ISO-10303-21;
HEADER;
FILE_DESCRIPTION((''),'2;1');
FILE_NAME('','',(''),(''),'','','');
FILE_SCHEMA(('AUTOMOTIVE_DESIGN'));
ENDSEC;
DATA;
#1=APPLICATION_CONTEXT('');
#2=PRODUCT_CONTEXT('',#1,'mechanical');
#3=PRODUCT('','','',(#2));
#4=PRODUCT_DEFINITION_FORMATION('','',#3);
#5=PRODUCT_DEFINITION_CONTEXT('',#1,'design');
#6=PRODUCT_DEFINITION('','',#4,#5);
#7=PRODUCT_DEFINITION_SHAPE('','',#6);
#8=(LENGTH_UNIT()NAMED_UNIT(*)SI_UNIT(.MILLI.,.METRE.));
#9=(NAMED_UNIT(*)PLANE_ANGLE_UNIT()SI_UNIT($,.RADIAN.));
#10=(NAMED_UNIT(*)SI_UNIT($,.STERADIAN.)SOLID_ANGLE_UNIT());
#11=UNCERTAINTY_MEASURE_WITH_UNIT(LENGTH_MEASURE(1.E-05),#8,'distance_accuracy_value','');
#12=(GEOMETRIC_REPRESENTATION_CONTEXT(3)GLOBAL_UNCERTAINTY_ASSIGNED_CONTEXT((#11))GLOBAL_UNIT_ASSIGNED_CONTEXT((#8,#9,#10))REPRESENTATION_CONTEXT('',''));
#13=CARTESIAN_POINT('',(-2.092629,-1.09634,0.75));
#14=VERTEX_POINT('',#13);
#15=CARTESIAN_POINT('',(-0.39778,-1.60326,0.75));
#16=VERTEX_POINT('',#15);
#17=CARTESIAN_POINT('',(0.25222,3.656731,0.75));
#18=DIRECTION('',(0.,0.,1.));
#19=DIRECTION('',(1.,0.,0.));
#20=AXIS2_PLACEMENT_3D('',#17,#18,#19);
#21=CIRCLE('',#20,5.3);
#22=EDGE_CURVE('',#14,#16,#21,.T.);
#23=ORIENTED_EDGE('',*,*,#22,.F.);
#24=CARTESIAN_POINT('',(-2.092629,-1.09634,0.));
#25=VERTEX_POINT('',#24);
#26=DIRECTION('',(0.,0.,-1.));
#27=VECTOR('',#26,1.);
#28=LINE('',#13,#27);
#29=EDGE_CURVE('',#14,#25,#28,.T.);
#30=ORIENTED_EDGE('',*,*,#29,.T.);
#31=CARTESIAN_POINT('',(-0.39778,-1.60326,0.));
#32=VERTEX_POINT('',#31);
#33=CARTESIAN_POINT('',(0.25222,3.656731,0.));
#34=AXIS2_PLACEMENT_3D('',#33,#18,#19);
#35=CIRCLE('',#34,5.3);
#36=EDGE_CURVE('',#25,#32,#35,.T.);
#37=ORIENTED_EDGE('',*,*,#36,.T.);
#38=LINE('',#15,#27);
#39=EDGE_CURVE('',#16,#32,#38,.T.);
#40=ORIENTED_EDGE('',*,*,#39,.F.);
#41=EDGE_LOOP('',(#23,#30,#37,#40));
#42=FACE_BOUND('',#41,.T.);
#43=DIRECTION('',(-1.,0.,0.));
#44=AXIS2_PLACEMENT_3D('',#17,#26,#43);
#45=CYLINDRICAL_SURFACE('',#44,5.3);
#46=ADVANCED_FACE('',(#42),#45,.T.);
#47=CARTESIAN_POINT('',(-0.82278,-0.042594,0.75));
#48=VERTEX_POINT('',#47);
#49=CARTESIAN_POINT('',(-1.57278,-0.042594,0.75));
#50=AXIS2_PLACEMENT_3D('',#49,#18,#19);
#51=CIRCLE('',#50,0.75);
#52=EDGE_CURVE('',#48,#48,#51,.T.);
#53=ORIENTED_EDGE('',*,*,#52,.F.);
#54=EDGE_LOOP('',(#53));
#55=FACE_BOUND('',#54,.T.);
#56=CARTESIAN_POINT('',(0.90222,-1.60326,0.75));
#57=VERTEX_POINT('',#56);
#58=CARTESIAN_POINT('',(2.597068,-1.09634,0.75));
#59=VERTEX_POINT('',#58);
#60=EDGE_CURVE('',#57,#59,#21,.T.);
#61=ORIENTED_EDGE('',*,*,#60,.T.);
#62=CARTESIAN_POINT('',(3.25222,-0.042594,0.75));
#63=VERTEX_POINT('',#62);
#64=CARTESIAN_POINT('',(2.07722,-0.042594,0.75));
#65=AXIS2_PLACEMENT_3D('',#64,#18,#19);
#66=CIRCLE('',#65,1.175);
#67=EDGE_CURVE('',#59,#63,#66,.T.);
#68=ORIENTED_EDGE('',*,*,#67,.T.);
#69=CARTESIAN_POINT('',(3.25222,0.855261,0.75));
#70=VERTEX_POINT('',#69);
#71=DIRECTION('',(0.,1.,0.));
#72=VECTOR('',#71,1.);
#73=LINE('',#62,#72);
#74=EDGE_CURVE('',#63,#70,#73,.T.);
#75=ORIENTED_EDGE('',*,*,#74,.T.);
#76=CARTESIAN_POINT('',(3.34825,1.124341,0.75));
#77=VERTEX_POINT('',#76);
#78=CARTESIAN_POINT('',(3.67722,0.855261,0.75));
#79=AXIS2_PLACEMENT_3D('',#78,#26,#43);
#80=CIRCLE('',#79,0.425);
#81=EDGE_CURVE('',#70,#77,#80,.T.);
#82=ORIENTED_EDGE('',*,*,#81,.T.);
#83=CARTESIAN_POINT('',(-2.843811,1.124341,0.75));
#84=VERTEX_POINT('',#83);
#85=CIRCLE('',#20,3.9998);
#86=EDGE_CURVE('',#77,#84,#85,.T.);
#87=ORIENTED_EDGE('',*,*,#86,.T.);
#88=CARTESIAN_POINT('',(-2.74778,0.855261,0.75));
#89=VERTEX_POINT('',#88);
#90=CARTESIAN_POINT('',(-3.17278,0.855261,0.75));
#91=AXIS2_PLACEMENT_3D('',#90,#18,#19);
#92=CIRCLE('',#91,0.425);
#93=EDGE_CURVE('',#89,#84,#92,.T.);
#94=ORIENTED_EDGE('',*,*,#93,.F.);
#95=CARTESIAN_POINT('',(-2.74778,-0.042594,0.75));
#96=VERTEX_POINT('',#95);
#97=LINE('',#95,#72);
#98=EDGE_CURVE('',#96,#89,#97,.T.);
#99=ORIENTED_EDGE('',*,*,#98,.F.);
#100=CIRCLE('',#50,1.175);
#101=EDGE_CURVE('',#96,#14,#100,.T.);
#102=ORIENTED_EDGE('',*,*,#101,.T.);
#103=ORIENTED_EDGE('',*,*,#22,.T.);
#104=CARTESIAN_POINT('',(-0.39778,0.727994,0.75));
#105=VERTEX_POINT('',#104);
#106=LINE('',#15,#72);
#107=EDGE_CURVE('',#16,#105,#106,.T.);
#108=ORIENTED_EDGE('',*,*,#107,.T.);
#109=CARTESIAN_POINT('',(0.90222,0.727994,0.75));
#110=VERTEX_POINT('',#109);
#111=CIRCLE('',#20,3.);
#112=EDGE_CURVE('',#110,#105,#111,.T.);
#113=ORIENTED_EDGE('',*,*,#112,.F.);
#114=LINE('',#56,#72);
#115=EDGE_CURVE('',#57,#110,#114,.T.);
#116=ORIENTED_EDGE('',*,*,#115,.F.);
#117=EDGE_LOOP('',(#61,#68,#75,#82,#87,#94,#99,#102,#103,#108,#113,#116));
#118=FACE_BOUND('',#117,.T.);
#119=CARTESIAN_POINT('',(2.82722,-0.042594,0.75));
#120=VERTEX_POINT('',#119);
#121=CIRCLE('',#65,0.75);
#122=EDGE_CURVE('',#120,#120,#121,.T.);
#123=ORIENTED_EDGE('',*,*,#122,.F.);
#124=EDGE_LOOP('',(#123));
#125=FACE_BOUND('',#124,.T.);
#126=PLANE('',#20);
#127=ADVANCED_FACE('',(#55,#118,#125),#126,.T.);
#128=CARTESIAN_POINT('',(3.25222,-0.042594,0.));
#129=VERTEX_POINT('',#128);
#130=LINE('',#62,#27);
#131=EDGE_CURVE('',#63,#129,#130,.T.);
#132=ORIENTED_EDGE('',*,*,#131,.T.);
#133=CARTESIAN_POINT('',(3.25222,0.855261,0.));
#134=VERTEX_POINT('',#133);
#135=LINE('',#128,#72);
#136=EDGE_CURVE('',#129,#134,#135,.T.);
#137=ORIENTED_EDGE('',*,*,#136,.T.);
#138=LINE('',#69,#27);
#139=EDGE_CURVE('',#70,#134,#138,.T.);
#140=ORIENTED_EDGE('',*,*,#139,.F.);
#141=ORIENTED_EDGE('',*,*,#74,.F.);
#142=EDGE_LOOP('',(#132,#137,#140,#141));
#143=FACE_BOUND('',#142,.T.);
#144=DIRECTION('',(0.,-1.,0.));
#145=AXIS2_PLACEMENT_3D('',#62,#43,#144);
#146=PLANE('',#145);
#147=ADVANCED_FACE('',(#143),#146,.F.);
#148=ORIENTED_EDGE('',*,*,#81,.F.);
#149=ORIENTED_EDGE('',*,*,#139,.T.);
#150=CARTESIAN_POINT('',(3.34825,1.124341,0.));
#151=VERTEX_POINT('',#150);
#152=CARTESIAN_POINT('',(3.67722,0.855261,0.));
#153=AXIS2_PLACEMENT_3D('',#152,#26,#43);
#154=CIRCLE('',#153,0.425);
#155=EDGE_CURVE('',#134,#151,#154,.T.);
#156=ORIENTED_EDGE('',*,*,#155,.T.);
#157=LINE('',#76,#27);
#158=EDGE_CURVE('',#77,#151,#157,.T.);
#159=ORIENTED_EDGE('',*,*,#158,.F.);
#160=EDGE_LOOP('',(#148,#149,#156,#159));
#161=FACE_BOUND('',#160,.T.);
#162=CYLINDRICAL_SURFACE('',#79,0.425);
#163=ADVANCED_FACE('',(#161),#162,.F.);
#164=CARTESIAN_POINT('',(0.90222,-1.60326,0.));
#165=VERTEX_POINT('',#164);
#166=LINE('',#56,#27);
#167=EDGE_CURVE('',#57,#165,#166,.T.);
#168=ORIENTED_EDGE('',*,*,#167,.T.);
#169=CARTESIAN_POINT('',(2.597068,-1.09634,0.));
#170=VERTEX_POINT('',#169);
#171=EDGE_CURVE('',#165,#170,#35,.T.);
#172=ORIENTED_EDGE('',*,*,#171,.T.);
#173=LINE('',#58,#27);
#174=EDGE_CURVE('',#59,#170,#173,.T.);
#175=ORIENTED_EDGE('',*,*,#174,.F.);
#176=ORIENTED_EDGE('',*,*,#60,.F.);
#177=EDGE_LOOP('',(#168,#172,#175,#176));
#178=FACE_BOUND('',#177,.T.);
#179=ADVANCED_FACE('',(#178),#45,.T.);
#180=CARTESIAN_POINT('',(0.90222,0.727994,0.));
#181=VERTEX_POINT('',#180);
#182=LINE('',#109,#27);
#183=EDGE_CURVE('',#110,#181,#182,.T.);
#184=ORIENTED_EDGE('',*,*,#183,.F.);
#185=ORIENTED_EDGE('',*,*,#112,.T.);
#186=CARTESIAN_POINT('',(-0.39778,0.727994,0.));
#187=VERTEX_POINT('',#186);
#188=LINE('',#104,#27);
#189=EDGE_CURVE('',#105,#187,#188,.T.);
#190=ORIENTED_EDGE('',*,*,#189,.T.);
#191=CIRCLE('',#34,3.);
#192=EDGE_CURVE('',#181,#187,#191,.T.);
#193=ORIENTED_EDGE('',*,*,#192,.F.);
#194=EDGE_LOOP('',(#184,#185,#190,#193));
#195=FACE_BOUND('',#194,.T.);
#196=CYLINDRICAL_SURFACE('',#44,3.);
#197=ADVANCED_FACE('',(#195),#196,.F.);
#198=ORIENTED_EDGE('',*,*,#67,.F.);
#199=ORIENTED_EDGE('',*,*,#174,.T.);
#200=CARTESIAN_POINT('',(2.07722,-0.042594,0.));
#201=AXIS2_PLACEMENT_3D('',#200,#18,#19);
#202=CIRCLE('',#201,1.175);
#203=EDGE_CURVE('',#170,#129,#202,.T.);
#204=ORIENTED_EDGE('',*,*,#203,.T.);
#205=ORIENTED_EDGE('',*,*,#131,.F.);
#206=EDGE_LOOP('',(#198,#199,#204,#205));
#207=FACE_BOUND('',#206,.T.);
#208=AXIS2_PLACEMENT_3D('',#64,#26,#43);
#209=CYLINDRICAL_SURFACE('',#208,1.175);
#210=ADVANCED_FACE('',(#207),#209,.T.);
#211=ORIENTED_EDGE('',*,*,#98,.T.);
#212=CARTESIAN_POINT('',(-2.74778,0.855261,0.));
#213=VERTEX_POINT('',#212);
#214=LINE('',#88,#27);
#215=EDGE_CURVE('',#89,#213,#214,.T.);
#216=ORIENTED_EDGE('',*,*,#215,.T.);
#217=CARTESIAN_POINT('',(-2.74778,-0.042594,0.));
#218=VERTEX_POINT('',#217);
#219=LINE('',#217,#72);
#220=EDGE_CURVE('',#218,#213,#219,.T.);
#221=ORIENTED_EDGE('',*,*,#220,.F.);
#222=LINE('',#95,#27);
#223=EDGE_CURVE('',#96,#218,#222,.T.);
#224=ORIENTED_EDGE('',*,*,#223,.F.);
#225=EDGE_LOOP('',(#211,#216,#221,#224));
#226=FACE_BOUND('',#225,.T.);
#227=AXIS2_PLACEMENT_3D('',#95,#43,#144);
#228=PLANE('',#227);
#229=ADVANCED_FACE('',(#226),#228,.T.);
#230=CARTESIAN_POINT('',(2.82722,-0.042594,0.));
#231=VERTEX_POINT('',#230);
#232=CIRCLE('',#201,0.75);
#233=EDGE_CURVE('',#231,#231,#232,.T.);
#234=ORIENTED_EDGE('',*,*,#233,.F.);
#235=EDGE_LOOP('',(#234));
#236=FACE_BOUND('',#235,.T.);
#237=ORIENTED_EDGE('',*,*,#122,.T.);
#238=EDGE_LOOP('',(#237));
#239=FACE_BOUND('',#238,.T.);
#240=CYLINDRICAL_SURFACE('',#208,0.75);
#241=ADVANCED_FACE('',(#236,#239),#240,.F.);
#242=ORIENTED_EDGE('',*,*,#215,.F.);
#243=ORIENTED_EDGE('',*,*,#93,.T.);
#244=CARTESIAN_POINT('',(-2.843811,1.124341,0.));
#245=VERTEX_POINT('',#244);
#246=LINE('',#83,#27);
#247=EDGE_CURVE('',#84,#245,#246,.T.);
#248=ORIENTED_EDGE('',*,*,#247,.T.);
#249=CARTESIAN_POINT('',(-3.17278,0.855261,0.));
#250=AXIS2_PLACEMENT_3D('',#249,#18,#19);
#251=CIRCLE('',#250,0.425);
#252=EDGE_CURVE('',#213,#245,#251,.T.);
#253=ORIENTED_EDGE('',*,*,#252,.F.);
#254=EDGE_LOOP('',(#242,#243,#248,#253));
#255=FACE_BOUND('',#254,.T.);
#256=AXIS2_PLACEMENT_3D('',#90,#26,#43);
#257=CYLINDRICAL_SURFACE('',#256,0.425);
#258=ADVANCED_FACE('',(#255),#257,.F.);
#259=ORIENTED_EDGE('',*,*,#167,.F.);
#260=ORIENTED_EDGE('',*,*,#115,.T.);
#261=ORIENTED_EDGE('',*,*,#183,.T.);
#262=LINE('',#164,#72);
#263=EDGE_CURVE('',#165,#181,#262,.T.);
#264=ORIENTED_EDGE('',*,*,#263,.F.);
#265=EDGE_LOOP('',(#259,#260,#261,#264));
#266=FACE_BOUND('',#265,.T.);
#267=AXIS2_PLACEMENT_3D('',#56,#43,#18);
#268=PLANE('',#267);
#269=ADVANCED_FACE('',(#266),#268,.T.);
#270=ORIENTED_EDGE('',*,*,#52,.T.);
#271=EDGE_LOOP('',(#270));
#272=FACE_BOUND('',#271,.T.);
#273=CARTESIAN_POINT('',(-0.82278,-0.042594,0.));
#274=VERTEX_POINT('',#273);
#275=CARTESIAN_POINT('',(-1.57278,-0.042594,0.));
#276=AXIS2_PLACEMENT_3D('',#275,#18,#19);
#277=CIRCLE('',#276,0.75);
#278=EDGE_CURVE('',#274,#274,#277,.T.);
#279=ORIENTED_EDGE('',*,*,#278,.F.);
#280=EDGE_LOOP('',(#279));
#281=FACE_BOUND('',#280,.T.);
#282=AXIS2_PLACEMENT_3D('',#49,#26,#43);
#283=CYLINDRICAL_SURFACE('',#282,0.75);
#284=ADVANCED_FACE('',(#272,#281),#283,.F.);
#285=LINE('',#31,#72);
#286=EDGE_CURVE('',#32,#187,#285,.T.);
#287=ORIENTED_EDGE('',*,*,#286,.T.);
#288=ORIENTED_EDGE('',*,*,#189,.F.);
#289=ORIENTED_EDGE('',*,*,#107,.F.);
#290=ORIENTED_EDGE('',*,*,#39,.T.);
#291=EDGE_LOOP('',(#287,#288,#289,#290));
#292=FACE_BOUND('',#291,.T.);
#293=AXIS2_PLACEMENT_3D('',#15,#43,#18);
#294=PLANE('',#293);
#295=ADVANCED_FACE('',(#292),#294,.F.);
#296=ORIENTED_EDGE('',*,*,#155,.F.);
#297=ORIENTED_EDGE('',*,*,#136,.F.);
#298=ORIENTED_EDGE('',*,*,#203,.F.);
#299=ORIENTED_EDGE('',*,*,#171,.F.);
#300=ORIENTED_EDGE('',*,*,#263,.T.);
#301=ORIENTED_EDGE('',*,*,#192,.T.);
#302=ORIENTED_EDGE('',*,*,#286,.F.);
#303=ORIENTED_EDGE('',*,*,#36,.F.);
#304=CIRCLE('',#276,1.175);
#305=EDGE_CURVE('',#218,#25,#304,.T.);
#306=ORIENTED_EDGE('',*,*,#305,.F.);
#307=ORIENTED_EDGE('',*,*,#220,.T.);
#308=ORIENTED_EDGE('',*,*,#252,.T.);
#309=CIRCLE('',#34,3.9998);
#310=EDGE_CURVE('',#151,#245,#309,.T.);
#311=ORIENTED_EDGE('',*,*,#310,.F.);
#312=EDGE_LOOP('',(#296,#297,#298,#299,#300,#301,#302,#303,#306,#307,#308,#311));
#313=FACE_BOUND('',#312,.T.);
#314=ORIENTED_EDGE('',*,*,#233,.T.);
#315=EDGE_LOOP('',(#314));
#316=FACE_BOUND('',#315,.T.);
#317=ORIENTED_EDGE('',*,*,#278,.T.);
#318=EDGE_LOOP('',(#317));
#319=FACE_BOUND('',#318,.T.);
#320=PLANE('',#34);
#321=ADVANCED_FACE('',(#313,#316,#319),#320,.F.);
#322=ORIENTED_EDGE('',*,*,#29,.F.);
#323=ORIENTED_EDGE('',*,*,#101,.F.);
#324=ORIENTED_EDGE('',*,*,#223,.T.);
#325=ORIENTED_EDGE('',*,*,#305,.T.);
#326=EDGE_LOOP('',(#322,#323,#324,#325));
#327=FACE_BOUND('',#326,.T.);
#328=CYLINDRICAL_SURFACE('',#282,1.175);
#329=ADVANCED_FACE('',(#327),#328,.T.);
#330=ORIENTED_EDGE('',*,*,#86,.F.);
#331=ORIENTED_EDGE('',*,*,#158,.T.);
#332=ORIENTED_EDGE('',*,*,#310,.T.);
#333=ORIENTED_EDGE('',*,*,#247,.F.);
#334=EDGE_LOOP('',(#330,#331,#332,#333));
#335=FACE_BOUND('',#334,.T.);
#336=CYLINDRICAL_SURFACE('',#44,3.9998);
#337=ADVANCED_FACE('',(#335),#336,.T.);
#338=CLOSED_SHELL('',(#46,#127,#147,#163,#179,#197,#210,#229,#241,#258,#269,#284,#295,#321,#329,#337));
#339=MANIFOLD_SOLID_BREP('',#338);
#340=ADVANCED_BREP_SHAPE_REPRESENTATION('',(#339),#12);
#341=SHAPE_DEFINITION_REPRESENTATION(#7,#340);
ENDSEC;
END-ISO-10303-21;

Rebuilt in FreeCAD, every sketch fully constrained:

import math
import FreeCAD as App
import Part
import Sketcher

V = App.Vector

doc = App.newDocument("Part")
body = doc.addObject("PartDesign::Body", "Body")

# Sketch on XY plane
sketch1 = doc.addObject("Sketcher::SketchObject", "Sketch")
body.addObject(sketch1)
sketch1.AttachmentSupport = (doc.XY_Plane, [""])
sketch1.MapMode = "FlatFace"
sketch1.addGeometry(Part.LineSegment(V(-0.4, -1.6, 0), V(-0.4, 0.73, 0)), False)
sketch1.addGeometry(Part.ArcOfCircle(Part.Circle(V(0.25, 3.66, 0), V(0, 0, 1), 3), math.radians(-77), math.radians(257)), False)
sketch1.addGeometry(Part.LineSegment(V(0.9, 0.73, 0), V(0.9, -1.6, 0)), False)
sketch1.addGeometry(Part.ArcOfCircle(Part.Circle(V(0.25, 3.66, 0), V(0, 0, 1), 5.3), math.radians(-82.96), math.radians(-63.74)), False)
sketch1.addGeometry(Part.ArcOfCircle(Part.Circle(V(2.08, -0.04, 0), V(0, 0, 1), 1.17), math.radians(-64), math.radians(0)), False)
sketch1.addGeometry(Part.LineSegment(V(3.25, -0.04, 0), V(3.25, 0.86, 0)), False)
sketch1.addGeometry(Part.ArcOfCircle(Part.Circle(V(3.68, 0.86, 0), V(0, 0, 1), 0.43), math.radians(141), math.radians(180)), False)
sketch1.addGeometry(Part.ArcOfCircle(Part.Circle(V(0.25, 3.66, 0), V(0, 0, 1), 4), math.radians(-39), math.radians(219)), False)
sketch1.addGeometry(Part.ArcOfCircle(Part.Circle(V(-3.17, 0.86, 0), V(0, 0, 1), 0.42), math.radians(0), math.radians(39)), False)
sketch1.addGeometry(Part.LineSegment(V(-2.75, 0.86, 0), V(-2.75, -0.04, 0)), False)
sketch1.addGeometry(Part.ArcOfCircle(Part.Circle(V(-1.57, -0.04, 0), V(0, 0, 1), 1.18), math.radians(-180), math.radians(-116)), False)
sketch1.addGeometry(Part.ArcOfCircle(Part.Circle(V(0.25, 3.66, 0), V(0, 0, 1), 5.3), math.radians(-116.26), math.radians(-97.04)), False)
sketch1.addGeometry(Part.Circle(V(-1.57, -0.04, 0), V(0, 0, 1), 0.75), False)
sketch1.addGeometry(Part.Circle(V(2.08, -0.04, 0), V(0, 0, 1), 0.75), False)
sketch1.addConstraint(Sketcher.Constraint("Coincident", 0, 2, 1, 2))
sketch1.addConstraint(Sketcher.Constraint("Coincident", 1, 1, 2, 1))
sketch1.addConstraint(Sketcher.Constraint("Coincident", 2, 2, 3, 1))
sketch1.addConstraint(Sketcher.Constraint("Tangent", 3, 2, 4, 1))
sketch1.addConstraint(Sketcher.Constraint("Tangent", 4, 2, 5, 1))
sketch1.addConstraint(Sketcher.Constraint("Tangent", 5, 2, 6, 2))
sketch1.addConstraint(Sketcher.Constraint("Tangent", 6, 1, 7, 1))
sketch1.addConstraint(Sketcher.Constraint("Tangent", 7, 2, 8, 2))
sketch1.addConstraint(Sketcher.Constraint("Tangent", 8, 1, 9, 1))
sketch1.addConstraint(Sketcher.Constraint("Tangent", 9, 2, 10, 1))
sketch1.addConstraint(Sketcher.Constraint("Tangent", 10, 2, 11, 1))
sketch1.addConstraint(Sketcher.Constraint("Coincident", 11, 2, 0, 1))
sketch1.addConstraint(Sketcher.Constraint("Vertical", 0))
sketch1.addConstraint(Sketcher.Constraint("Vertical", 2))
sketch1.addConstraint(Sketcher.Constraint("Vertical", 5))
sketch1.addConstraint(Sketcher.Constraint("Vertical", 9))
sketch1.addConstraint(Sketcher.Constraint("Coincident", 3, 3, 1, 3))
sketch1.addConstraint(Sketcher.Constraint("Coincident", 7, 3, 1, 3))
sketch1.addConstraint(Sketcher.Constraint("Coincident", 11, 3, 1, 3))
sketch1.addConstraint(Sketcher.Constraint("Coincident", 12, 3, 10, 3))
sketch1.addConstraint(Sketcher.Constraint("Coincident", 13, 3, 4, 3))
sketch1.addConstraint(Sketcher.Constraint("Equal", 6, 8))
sketch1.addConstraint(Sketcher.Constraint("Equal", 4, 10))
sketch1.addConstraint(Sketcher.Constraint("Equal", 3, 11))
sketch1.addConstraint(Sketcher.Constraint("Equal", 12, 13))
sketch1.addConstraint(Sketcher.Constraint("Horizontal", 6, 3, 8, 3))
sketch1.addConstraint(Sketcher.Constraint("Horizontal", 0, 2, 1, 1))
sketch1.addConstraint(Sketcher.Constraint("Radius", 1, 3.0))
sketch1.addConstraint(Sketcher.Constraint("Diameter", 12, 1.5))
sketch1.addConstraint(Sketcher.Constraint("Radius", 3, 5.3))
sketch1.addConstraint(Sketcher.Constraint("Radius", 4, 1.175))
sketch1.addConstraint(Sketcher.Constraint("Radius", 6, 0.425))
sketch1.addConstraint(Sketcher.Constraint("Radius", 7, 3.9998))
sketch1.addConstraint(Sketcher.Constraint("DistanceX", 0, 2, 1, 1, 1.3))
sketch1.addConstraint(Sketcher.Constraint("DistanceX", 8, 3, 4, 3, 5.25))
sketch1.addConstraint(Sketcher.Constraint("DistanceX", -1, 1, 1, 3, 0.25222))
sketch1.addConstraint(Sketcher.Constraint("DistanceY", -1, 1, 1, 3, 3.656731))
pad1 = doc.addObject("PartDesign::Pad", "Pad")
body.addObject(pad1)
pad1.Profile = sketch1
pad1.Length = 0.75

doc.recompute()
